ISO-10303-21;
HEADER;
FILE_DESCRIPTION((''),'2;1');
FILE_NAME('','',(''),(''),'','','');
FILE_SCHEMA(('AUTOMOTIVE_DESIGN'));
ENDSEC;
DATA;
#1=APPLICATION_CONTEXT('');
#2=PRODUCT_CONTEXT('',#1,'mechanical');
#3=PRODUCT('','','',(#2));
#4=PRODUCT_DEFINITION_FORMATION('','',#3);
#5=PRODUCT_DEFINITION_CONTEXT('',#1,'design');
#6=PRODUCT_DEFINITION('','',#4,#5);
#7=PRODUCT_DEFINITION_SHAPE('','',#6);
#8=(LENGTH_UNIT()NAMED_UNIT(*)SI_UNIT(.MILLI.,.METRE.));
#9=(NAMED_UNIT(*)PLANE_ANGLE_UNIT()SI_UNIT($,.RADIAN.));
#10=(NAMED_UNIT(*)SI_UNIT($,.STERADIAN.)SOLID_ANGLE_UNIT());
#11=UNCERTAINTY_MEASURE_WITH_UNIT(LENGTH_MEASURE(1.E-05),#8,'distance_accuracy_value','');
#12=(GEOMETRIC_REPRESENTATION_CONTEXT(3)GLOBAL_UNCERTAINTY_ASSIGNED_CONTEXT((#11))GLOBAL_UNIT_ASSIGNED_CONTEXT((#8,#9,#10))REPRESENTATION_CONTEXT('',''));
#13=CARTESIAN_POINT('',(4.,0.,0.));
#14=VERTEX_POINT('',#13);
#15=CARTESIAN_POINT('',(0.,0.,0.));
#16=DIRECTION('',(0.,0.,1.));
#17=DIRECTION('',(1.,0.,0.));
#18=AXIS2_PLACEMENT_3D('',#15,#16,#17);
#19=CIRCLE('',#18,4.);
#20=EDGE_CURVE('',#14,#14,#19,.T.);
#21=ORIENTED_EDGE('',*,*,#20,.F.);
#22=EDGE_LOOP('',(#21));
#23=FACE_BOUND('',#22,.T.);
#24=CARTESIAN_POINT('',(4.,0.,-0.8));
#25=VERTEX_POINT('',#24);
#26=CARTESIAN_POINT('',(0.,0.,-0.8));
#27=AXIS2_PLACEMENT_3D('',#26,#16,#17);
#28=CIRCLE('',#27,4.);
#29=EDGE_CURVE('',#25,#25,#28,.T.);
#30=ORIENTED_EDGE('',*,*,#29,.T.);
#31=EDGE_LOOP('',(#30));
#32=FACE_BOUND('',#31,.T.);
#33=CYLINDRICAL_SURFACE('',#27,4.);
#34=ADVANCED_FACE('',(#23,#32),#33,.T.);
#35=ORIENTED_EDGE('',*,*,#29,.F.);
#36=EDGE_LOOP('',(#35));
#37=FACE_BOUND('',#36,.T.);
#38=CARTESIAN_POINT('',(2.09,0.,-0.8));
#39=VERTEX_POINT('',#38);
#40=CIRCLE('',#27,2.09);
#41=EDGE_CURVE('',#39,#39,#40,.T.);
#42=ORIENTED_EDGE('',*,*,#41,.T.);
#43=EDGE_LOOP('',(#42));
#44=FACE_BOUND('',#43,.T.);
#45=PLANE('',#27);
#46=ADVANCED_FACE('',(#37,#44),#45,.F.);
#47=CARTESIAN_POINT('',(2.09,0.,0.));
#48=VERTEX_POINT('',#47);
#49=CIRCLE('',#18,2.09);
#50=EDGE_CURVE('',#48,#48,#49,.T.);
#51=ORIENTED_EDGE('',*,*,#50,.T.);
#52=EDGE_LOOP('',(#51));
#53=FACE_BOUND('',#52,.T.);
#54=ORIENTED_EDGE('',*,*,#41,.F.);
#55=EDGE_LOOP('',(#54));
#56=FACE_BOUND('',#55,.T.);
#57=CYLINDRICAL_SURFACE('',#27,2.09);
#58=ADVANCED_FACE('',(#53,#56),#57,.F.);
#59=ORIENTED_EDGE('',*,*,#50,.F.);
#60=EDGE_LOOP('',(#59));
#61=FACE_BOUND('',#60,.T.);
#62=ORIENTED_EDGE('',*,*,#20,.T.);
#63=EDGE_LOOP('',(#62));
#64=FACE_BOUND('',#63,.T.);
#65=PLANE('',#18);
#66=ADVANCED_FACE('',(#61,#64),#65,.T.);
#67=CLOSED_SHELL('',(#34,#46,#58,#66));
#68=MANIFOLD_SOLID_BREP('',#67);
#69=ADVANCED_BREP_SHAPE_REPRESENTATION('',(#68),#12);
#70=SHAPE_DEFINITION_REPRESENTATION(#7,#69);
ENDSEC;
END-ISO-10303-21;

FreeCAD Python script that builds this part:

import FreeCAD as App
import Part
import Sketcher

V = App.Vector

doc = App.newDocument("Part")
body = doc.addObject("PartDesign::Body", "Body")

sketch1 = doc.addObject("Sketcher::SketchObject", "Sketch")
body.addObject(sketch1)
sketch1.AttachmentSupport = (doc.XY_Plane, [""])
sketch1.MapMode = "FlatFace"
sketch1.addGeometry(Part.Circle(V(0, 0, 0), V(0, 0, 1), 4), False)
sketch1.addGeometry(Part.Circle(V(0, 0, 0), V(0, 0, 1), 2.1), False)
sketch1.addConstraint(Sketcher.Constraint("Coincident", 0, 3, -1, 1))
sketch1.addConstraint(Sketcher.Constraint("Coincident", 1, 3, -1, 1))
sketch1.addConstraint(Sketcher.Constraint("Diameter", 0, 8.0))
sketch1.addConstraint(Sketcher.Constraint("Diameter", 1, 4.18))
pad1 = doc.addObject("PartDesign::Pad", "Pad")
body.addObject(pad1)
pad1.Profile = sketch1
pad1.Length = 0.8
pad1.Reversed = True

doc.recompute()
